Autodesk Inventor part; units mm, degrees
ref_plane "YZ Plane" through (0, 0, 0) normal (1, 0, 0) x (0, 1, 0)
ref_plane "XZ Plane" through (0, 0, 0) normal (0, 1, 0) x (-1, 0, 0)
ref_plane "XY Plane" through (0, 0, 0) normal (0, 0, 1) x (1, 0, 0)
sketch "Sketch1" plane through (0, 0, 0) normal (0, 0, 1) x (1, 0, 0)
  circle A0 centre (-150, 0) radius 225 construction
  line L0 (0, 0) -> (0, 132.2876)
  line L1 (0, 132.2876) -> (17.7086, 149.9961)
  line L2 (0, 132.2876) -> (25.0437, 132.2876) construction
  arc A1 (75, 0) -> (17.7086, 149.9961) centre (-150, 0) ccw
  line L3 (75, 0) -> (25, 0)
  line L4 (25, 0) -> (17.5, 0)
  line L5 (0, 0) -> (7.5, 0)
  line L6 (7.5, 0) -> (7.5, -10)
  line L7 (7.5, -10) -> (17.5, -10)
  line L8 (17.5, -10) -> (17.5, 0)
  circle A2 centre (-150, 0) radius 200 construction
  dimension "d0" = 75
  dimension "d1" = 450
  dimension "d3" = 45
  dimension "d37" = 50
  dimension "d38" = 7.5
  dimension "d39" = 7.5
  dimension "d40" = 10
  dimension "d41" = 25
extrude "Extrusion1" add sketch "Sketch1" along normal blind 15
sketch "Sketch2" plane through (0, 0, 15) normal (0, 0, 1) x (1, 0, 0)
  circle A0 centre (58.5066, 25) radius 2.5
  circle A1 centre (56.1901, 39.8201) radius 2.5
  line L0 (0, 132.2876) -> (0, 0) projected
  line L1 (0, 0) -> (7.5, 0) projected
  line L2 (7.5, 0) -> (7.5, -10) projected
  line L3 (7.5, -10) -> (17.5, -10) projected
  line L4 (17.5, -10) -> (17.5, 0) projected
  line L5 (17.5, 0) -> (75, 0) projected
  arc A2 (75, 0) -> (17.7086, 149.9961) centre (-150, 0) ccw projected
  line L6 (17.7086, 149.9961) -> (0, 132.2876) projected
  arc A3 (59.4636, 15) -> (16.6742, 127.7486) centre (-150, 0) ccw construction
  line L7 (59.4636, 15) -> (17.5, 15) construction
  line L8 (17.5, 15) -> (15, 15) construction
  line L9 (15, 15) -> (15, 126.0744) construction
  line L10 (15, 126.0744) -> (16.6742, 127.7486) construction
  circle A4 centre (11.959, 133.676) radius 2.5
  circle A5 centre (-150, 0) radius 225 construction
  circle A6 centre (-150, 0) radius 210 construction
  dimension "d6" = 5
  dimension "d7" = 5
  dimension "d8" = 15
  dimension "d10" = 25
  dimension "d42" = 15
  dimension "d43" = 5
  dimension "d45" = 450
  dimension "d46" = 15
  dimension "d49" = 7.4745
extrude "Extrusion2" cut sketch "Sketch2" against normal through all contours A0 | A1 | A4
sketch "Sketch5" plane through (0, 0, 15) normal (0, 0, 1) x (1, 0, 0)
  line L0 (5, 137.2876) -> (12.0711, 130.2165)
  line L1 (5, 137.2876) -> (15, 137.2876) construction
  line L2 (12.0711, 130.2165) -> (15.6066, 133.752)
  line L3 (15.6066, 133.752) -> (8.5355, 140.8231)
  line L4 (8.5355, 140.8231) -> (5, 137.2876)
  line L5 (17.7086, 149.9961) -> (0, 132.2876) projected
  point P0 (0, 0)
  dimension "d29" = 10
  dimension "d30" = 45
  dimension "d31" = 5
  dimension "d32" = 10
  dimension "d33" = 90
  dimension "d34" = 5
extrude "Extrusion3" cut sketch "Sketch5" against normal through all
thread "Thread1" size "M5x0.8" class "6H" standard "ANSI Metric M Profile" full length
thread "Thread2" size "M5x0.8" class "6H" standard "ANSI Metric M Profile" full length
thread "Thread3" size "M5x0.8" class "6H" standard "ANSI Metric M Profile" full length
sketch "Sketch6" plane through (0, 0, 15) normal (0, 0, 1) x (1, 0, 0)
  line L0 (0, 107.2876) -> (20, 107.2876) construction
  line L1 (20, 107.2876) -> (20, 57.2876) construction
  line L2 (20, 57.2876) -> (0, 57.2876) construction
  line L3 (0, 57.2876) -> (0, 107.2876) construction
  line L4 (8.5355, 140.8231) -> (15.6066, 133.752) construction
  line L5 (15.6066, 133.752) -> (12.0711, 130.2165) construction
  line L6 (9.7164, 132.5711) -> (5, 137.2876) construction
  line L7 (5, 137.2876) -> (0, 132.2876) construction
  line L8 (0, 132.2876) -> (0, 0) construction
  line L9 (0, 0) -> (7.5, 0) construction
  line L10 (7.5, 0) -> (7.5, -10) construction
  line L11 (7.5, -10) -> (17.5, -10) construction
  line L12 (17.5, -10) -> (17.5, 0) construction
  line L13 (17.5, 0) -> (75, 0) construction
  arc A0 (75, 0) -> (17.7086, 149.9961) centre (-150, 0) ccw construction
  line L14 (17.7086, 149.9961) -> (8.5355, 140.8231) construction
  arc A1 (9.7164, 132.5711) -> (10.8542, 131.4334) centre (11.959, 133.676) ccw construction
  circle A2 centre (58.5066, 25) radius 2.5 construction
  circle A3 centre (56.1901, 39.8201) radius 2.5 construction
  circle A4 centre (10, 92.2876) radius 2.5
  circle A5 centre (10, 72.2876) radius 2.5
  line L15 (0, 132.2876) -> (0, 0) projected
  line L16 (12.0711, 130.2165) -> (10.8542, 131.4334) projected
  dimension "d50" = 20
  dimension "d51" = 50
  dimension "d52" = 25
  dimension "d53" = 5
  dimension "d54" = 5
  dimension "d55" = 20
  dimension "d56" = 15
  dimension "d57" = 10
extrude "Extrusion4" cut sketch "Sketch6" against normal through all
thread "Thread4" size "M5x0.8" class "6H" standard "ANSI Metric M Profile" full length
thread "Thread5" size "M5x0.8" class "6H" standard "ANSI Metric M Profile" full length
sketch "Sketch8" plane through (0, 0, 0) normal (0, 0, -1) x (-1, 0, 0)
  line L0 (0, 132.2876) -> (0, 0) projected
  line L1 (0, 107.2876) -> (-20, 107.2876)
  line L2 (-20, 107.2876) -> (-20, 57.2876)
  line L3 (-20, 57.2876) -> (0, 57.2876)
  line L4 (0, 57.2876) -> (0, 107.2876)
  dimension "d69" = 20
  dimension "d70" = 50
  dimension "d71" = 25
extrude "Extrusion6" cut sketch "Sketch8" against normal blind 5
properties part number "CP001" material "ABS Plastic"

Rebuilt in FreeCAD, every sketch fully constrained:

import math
import FreeCAD as App
import Part
import Sketcher

V = App.Vector
Q = App.Units.Quantity

doc = App.newDocument("Part")
body = doc.addObject("PartDesign::Body", "Body")

# Sketch on XY plane
sketch1 = body.newObject("Sketcher::SketchObject", "Sketch")
sketch1.AttachmentSupport = (doc.getObject("XY_Plane"), [""])
sketch1.MapMode = "FlatFace"
sketch1.addGeometry([
    Part.LineSegment(V(0, 132, 0), V(0, 0, 0)),  # 0
    Part.LineSegment(V(0, 0, 0), V(8, 0, 0)),  # 1
    Part.LineSegment(V(8, 0, 0), V(8, -10, 0)),  # 2
    Part.LineSegment(V(8, -10, 0), V(18, -10, 0)),  # 3
    Part.LineSegment(V(18, -10, 0), V(18, 0, 0)),  # 4
    Part.LineSegment(V(18, 0, 0), V(75, 0, 0)),  # 5
    Part.ArcOfCircle(Part.Circle(V(-150, 0, 0), V(0, 0, 1), 225), math.radians(0), math.radians(42)),  # 6
    Part.LineSegment(V(18, 150, 0), V(0, 132, 0)),  # 7
], False)
sketch1.addConstraint([
    Sketcher.Constraint("Coincident", 0, 2, 1, 1),
    Sketcher.Constraint("Coincident", 1, 2, 2, 1),
    Sketcher.Constraint("Coincident", 2, 2, 3, 1),
    Sketcher.Constraint("Coincident", 3, 2, 4, 1),
    Sketcher.Constraint("Coincident", 4, 2, 5, 1),
    Sketcher.Constraint("Coincident", 5, 2, 6, 1),
    Sketcher.Constraint("Coincident", 6, 2, 7, 1),
    Sketcher.Constraint("Coincident", 7, 2, 0, 1),
    Sketcher.Constraint("Vertical", 0),
    Sketcher.Constraint("Horizontal", 1),
    Sketcher.Constraint("Vertical", 2),
    Sketcher.Constraint("Horizontal", 3),
    Sketcher.Constraint("Vertical", 4),
    Sketcher.Constraint("Horizontal", 5),
    Sketcher.Constraint("Coincident", 0, 2, -1, 1),
    Sketcher.Constraint("PointOnObject", 6, 3, -1),
    Sketcher.Constraint("PointOnObject", 4, 2, -1),
    Sketcher.Constraint("Equal", 3, 2),
    Sketcher.Constraint("Radius", 6, Q("225 mm")),
    Sketcher.Constraint("DistanceX", 3, 1, 3, 2, Q("10 mm")),
    Sketcher.Constraint("DistanceX", 1, 1, 1, 2, Q("7.5 mm")),
    Sketcher.Constraint("DistanceX", -1, 1, 5, 2, Q("75 mm")),
    Sketcher.Constraint("Angle", 7, Q("-135.0002 deg")),
    Sketcher.Constraint("DistanceY", 0, 2, 0, 1, Q("132.2876 mm")),
])
pad1 = body.newObject("PartDesign::Pad", "Pad")
pad1.Profile = sketch1
pad1.Length = 15

# Sketch on XY plane
sketch2 = body.newObject("Sketcher::SketchObject", "Sketch001")
sketch2.AttachmentSupport = (doc.getObject("XY_Plane"), [""])
sketch2.MapMode = "FlatFace"
sketch2.AttachmentOffset = App.Placement(V(0, 0, 15), App.Rotation())
sketch2.addGeometry([
    Part.Circle(V(58.5, 25, 0), V(0, 0, 1), 2.5),
    Part.Circle(V(56.2, 39.8, 0), V(0, 0, 1), 2.5),
    Part.Circle(V(12, 133.7, 0), V(0, 0, 1), 2.5),
], False)
sketch2.addConstraint([
    Sketcher.Constraint("Equal", 0, 1),
    Sketcher.Constraint("Equal", 1, 2),
    Sketcher.Constraint("Diameter", 0, Q("5 mm")),
    Sketcher.Constraint("DistanceY", -1, 1, 0, 3, Q("25 mm")),
    Sketcher.Constraint("DistanceX", -1, 1, 1, 3, Q("56.19 mm")),
    Sketcher.Constraint("DistanceY", -1, 1, 1, 3, Q("39.82 mm")),
    Sketcher.Constraint("DistanceX", -1, 1, 2, 3, Q("11.959 mm")),
    Sketcher.Constraint("DistanceY", -1, 1, 2, 3, Q("133.676 mm")),
    Sketcher.Constraint("DistanceX", -1, 1, 0, 3, Q("58.5066 mm")),
])
pocket1 = body.newObject("PartDesign::Pocket", "Pocket")
pocket1.Profile = sketch2
pocket1.Type = "ThroughAll"

# Sketch on XY plane
sketch3 = body.newObject("Sketcher::SketchObject", "Sketch002")
sketch3.AttachmentSupport = (doc.getObject("XY_Plane"), [""])
sketch3.MapMode = "FlatFace"
sketch3.AttachmentOffset = App.Placement(V(0, 0, 15), App.Rotation())
sketch3.addGeometry([
    Part.LineSegment(V(8.5, 140.8, 0), V(5, 137.3, 0)),
    Part.LineSegment(V(5, 137.3, 0), V(12.1, 130.2, 0)),
    Part.LineSegment(V(12.1, 130.2, 0), V(15.6, 133.8, 0)),
    Part.LineSegment(V(15.6, 133.8, 0), V(8.5, 140.8, 0)),
], False)
sketch3.addConstraint([
    Sketcher.Constraint("Coincident", 0, 2, 1, 1),
    Sketcher.Constraint("Coincident", 1, 2, 2, 1),
    Sketcher.Constraint("Coincident", 2, 2, 3, 1),
    Sketcher.Constraint("Coincident", 3, 2, 0, 1),
    Sketcher.Constraint("Perpendicular", 0, 1),
    Sketcher.Constraint("Perpendicular", 1, 2),
    Sketcher.Constraint("Perpendicular", 2, 3),
    Sketcher.Constraint("Angle", 1, Q("-45 deg")),
    Sketcher.Constraint("Distance", 0, Q("5 mm")),
    Sketcher.Constraint("Distance", 1, Q("10 mm")),
    Sketcher.Constraint("DistanceX", -1, 1, 0, 2, Q("5 mm")),
    Sketcher.Constraint("DistanceY", -1, 1, 2, 2, Q("133.752 mm")),
])
pocket2 = body.newObject("PartDesign::Pocket", "Pocket001")
pocket2.Profile = sketch3
pocket2.Type = "ThroughAll"

# Sketch on XY plane
sketch4 = body.newObject("Sketcher::SketchObject", "Sketch003")
sketch4.AttachmentSupport = (doc.getObject("XY_Plane"), [""])
sketch4.MapMode = "FlatFace"
sketch4.AttachmentOffset = App.Placement(V(0, 0, 15), App.Rotation())
sketch4.addGeometry([
    Part.Circle(V(10, 92.3, 0), V(0, 0, 1), 2.5),
    Part.Circle(V(10, 72.3, 0), V(0, 0, 1), 2.5),
], False)
sketch4.addConstraint([
    Sketcher.Constraint("Equal", 0, 1),
    Sketcher.Constraint("Vertical", 0, 3, 1, 3),
    Sketcher.Constraint("Diameter", 0, Q("5 mm")),
    Sketcher.Constraint("DistanceX", -1, 1, 0, 3, Q("10 mm")),
    Sketcher.Constraint("DistanceY", 1, 3, 0, 3, Q("20 mm")),
    Sketcher.Constraint("DistanceY", -1, 1, 0, 3, Q("92.2876 mm")),
])
pocket3 = body.newObject("PartDesign::Pocket", "Pocket002")
pocket3.Profile = sketch4
pocket3.Type = "ThroughAll"

# Sketch on XY plane
sketch5 = body.newObject("Sketcher::SketchObject", "Sketch004")
sketch5.AttachmentSupport = (doc.getObject("XY_Plane"), [""])
sketch5.MapMode = "FlatFace"
sketch5.addGeometry([
    Part.LineSegment(V(0, 57, 0), V(0, 107, 0)),
    Part.LineSegment(V(0, 107, 0), V(20, 107, 0)),
    Part.LineSegment(V(20, 107, 0), V(20, 57, 0)),
    Part.LineSegment(V(20, 57, 0), V(0, 57, 0)),
], False)
sketch5.addConstraint([
    Sketcher.Constraint("Coincident", 0, 2, 1, 1),
    Sketcher.Constraint("Coincident", 1, 2, 2, 1),
    Sketcher.Constraint("Coincident", 2, 2, 3, 1),
    Sketcher.Constraint("Coincident", 3, 2, 0, 1),
    Sketcher.Constraint("Vertical", 0),
    Sketcher.Constraint("Horizontal", 1),
    Sketcher.Constraint("Vertical", 2),
    Sketcher.Constraint("Horizontal", 3),
    Sketcher.Constraint("PointOnObject", 0, 2, -2),
    Sketcher.Constraint("DistanceX", 1, 1, 1, 2, Q("20 mm")),
    Sketcher.Constraint("DistanceY", 0, 1, 0, 2, Q("50 mm")),
    Sketcher.Constraint("DistanceY", -1, 1, 0, 2, Q("107.2876 mm")),
])
pocket4 = body.newObject("PartDesign::Pocket", "Pocket003")
pocket4.Profile = sketch5
pocket4.Length = 5
pocket4.Reversed = True

doc.recompute()
